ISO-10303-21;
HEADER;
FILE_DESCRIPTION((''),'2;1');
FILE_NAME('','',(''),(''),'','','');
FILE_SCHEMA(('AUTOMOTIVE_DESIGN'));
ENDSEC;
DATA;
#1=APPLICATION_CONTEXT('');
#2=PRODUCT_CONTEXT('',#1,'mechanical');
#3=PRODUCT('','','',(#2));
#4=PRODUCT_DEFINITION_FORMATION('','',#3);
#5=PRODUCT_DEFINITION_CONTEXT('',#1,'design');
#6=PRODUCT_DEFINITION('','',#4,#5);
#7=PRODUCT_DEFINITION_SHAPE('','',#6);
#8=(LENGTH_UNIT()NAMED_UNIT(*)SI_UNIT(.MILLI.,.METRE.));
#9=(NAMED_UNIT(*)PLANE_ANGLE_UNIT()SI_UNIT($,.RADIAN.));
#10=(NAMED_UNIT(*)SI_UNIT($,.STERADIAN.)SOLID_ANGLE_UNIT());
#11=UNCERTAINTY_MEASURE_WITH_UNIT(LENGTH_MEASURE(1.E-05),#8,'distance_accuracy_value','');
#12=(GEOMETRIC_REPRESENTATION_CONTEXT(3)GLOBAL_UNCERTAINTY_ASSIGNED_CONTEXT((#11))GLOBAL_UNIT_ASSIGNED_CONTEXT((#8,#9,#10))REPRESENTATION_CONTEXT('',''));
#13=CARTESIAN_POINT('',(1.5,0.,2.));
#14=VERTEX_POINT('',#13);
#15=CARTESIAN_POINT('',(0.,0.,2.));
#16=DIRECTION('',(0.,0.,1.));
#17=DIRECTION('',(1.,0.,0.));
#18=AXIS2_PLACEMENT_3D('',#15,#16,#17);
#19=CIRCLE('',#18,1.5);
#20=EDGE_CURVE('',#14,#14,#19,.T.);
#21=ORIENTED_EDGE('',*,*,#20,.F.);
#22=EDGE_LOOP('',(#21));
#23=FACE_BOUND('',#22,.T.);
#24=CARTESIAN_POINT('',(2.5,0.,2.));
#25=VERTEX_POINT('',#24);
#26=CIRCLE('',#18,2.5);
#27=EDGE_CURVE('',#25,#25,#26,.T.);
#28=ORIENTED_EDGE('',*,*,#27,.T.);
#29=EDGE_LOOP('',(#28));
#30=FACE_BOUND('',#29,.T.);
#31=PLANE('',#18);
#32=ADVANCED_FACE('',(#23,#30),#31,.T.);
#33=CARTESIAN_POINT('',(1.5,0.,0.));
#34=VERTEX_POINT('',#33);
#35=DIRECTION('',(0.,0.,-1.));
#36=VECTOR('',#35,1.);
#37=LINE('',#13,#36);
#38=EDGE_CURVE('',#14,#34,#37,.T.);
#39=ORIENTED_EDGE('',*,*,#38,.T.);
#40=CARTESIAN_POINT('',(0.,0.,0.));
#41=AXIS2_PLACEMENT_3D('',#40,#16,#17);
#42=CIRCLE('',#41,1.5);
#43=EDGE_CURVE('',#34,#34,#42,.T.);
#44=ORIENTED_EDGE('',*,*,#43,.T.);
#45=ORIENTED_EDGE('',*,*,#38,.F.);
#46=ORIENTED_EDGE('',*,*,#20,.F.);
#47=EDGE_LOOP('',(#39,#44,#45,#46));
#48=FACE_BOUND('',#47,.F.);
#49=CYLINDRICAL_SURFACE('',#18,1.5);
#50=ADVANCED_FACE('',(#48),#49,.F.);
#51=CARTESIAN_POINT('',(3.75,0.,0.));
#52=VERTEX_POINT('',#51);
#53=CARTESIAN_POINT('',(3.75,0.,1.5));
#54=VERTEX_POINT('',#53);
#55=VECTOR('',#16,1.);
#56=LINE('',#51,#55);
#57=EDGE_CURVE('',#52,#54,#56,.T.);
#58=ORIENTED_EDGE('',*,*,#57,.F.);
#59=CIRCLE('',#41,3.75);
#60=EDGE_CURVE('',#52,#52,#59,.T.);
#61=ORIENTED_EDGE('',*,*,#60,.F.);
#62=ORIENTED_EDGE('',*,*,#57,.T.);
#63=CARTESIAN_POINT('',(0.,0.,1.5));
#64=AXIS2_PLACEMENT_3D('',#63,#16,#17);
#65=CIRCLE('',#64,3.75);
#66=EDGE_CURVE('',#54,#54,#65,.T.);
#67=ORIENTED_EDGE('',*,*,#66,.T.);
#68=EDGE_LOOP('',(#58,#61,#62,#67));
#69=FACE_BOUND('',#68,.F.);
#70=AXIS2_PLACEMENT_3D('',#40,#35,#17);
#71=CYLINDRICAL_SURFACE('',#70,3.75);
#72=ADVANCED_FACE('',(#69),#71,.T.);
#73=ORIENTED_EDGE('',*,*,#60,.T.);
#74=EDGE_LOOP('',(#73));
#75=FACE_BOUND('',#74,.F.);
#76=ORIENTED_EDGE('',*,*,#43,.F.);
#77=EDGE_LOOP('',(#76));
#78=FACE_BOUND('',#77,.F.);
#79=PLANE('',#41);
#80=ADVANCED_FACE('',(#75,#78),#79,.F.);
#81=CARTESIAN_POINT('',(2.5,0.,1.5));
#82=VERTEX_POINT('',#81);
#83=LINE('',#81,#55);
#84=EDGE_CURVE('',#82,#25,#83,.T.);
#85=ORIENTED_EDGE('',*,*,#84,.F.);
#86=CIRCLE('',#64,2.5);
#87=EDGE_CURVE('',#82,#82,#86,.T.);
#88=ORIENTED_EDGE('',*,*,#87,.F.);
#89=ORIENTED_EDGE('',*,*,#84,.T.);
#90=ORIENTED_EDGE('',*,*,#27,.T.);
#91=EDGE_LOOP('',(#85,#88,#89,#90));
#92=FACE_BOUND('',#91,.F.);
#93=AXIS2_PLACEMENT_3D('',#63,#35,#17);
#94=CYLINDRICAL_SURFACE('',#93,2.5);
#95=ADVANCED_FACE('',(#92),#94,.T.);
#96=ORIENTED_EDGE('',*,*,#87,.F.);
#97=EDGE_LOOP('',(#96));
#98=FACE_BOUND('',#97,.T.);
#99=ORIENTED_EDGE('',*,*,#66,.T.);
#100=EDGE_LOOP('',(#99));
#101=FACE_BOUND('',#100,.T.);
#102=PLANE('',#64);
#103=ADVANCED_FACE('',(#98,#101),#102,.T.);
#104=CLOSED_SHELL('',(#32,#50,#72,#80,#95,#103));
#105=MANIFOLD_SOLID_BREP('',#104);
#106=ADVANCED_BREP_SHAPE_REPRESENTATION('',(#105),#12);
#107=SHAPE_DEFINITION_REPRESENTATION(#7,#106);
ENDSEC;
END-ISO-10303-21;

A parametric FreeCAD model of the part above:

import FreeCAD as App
import Part
import Sketcher
Q = App.Units.Quantity

doc = App.newDocument("Part")
params = doc.addObject("Spreadsheet::Sheet", "Params")
for row, (alias, value) in enumerate([
    ("sketch1_diameter", "7.5 mm"),
    ("pad1_length", "1.5 mm"),
    ("sketch2_diameter", "5 mm"),
    ("pad2_length", "0.5 mm"),
    ("sketch3_diameter", "3 mm"),
], start=1):
    params.set(f"A{row}", alias)
    params.set(f"B{row}", "=" + value)
    params.setAlias(f"B{row}", alias)

body = doc.addObject("PartDesign::Body", "Body")

# Sketch on XY plane
sketch1 = body.newObject("Sketcher::SketchObject", "Sketch")
sketch1.AttachmentSupport = (doc.getObject("XY_Plane"), [""])
sketch1.MapMode = "FlatFace"
sketch1.addGeometry(Part.Circle(App.Vector(0, 0, 0), App.Vector(0, 0, 1), 3.8), False)
sketch1.addConstraint(Sketcher.Constraint("Coincident", 0, 3, -1, 1))
sketch1.addConstraint(Sketcher.Constraint("Diameter", 0, Q("7.5 mm")))
sketch1.setExpression("Constraints[1]", "Params.sketch1_diameter")
pad1 = body.newObject("PartDesign::Pad", "Pad")
pad1.Profile = sketch1
pad1.setExpression("Length", "Params.pad1_length")

# Sketch on XY plane
sketch2 = body.newObject("Sketcher::SketchObject", "Sketch001")
sketch2.AttachmentSupport = (doc.getObject("XY_Plane"), [""])
sketch2.MapMode = "FlatFace"
sketch2.AttachmentOffset = App.Placement(App.Vector(0, 0, 1.5), App.Rotation())
sketch2.addGeometry(Part.Circle(App.Vector(0, 0, 0), App.Vector(0, 0, 1), 2.5), False)
sketch2.addConstraint(Sketcher.Constraint("Coincident", 0, 3, -1, 1))
sketch2.addConstraint(Sketcher.Constraint("Diameter", 0, Q("5 mm")))
sketch2.setExpression("Constraints[1]", "Params.sketch2_diameter")
pad2 = body.newObject("PartDesign::Pad", "Pad001")
pad2.Profile = sketch2
pad2.setExpression("Length", "Params.pad2_length")

# Sketch on XY plane
sketch3 = body.newObject("Sketcher::SketchObject", "Sketch002")
sketch3.AttachmentSupport = (doc.getObject("XY_Plane"), [""])
sketch3.MapMode = "FlatFace"
sketch3.AttachmentOffset = App.Placement(App.Vector(0, 0, 2), App.Rotation())
sketch3.addGeometry(Part.Circle(App.Vector(0, 0, 0), App.Vector(0, 0, 1), 1.5), False)
sketch3.addConstraint(Sketcher.Constraint("Coincident", 0, 3, -1, 1))
sketch3.addConstraint(Sketcher.Constraint("Diameter", 0, Q("3 mm")))
sketch3.setExpression("Constraints[1]", "Params.sketch3_diameter")
pocket1 = body.newObject("PartDesign::Pocket", "Pocket")
pocket1.Profile = sketch3
pocket1.Type = "ThroughAll"
pocket1.Midplane = True

doc.recompute()
